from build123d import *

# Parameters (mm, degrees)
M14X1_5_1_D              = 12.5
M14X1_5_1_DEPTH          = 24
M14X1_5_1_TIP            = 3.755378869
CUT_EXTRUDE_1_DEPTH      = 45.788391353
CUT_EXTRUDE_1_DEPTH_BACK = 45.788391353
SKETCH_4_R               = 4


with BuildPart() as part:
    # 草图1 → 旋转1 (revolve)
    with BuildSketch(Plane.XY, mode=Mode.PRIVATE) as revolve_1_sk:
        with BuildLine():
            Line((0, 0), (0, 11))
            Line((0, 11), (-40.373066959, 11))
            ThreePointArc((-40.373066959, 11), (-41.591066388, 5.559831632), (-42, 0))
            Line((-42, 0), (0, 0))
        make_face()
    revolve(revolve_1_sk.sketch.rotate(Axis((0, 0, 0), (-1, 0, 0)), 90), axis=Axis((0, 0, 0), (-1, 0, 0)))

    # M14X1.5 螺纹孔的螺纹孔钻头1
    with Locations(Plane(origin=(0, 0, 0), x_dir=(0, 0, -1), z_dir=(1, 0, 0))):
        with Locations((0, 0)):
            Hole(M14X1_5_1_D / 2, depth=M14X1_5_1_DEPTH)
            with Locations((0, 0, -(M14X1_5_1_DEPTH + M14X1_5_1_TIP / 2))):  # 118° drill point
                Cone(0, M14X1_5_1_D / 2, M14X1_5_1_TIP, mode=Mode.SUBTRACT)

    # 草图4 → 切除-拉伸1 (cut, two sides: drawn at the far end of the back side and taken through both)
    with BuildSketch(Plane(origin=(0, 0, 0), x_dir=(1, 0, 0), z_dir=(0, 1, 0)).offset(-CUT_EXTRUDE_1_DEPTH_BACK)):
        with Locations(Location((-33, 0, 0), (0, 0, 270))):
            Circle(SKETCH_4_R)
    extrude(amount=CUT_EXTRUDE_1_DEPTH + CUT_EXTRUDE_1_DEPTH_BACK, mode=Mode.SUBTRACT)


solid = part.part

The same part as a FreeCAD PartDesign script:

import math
import FreeCAD as App
import Part
import Sketcher
from FreeCAD import Vector

doc = App.newDocument("Part")
params = doc.addObject("Spreadsheet::Sheet", "Params")
for row, (alias, value) in enumerate([
    ("sketch1_radius", "38 mm"),
    ("sketch1_width", "42 mm"),
    ("sketch1_height", "11 mm"),
    ("revolution_angle", "360 deg"),
    ("sketch2_diameter", "12.5 mm"),
    ("hole_diameter", "12.5 mm"),
    ("hole_depth", "24 mm"),
    ("sketch3_diameter", "8 mm"),
], start=1):
    params.set(f"A{row}", alias)
    params.set(f"B{row}", "=" + value)
    params.setAlias(f"B{row}", alias)

body = doc.addObject("PartDesign::Body", "Body")

# Sketch on XY plane
sketch1 = body.newObject("Sketcher::SketchObject", "Sketch")
sketch1.AttachmentSupport = (doc.getObject("XY_Plane"), [""])
sketch1.MapMode = "FlatFace"
sketch1.addGeometry(Part.LineSegment(Vector(0, 0, 0), Vector(0, 11, 0)), False)
sketch1.addGeometry(Part.LineSegment(Vector(0, 11, 0), Vector(-40, 11, 0)), False)
sketch1.addGeometry(Part.ArcOfCircle(Part.Circle(Vector(-4, 0, 0), Vector(0, 0, 1), 38), math.radians(163.17), math.radians(180)), False)
sketch1.addGeometry(Part.LineSegment(Vector(-42, 0, 0), Vector(0, 0, 0)), False)
sketch1.addConstraint(Sketcher.Constraint("Coincident", 0, 2, 1, 1))
sketch1.addConstraint(Sketcher.Constraint("Coincident", 1, 2, 2, 1))
sketch1.addConstraint(Sketcher.Constraint("Coincident", 2, 2, 3, 1))
sketch1.addConstraint(Sketcher.Constraint("Coincident", 3, 2, 0, 1))
sketch1.addConstraint(Sketcher.Constraint("Vertical", 0))
sketch1.addConstraint(Sketcher.Constraint("Horizontal", 1))
sketch1.addConstraint(Sketcher.Constraint("Horizontal", 3))
sketch1.addConstraint(Sketcher.Constraint("Coincident", 3, 2, -1, 1))
sketch1.addConstraint(Sketcher.Constraint("PointOnObject", 2, 3, -1))
sketch1.addConstraint(Sketcher.Constraint("Radius", 2, 38.0))
sketch1.addConstraint(Sketcher.Constraint("DistanceX", 3, 1, 3, 2, 42.0))
sketch1.addConstraint(Sketcher.Constraint("DistanceY", 0, 1, 0, 2, 11.0))
sketch1.setExpression("Constraints[9]", "Params.sketch1_radius")
sketch1.setExpression("Constraints[10]", "Params.sketch1_width")
sketch1.setExpression("Constraints[11]", "Params.sketch1_height")
revolution = body.newObject("PartDesign::Revolution", "Revolution")
revolution.Profile = sketch1
revolution.ReferenceAxis = (sketch1, ["H_Axis"])
revolution.setExpression("Angle", "Params.revolution_angle")

# Sketch on YZ plane
sketch2 = body.newObject("Sketcher::SketchObject", "Sketch001")
sketch2.AttachmentSupport = (doc.getObject("YZ_Plane"), [""])
sketch2.MapMode = "FlatFace"
sketch2.addGeometry(Part.Circle(Vector(0, 0, 0), Vector(0, 0, 1), 6), False)
sketch2.addConstraint(Sketcher.Constraint("Coincident", 0, 3, -1, 1))
sketch2.addConstraint(Sketcher.Constraint("Diameter", 0, 12.5))
sketch2.setExpression("Constraints[1]", "Params.sketch2_diameter")
doc.recompute()
hole = body.newObject("PartDesign::Hole", "Hole")
hole.Profile = sketch2
hole.ThreadType = "None"
hole.setExpression("Diameter", "Params.hole_diameter")
hole.DepthType = "Dimension"
hole.setExpression("Depth", "Params.hole_depth")
hole.DrillPoint = "Angled"
hole.DrillPointAngle = 118

# Sketch on XZ plane
sketch3 = body.newObject("Sketcher::SketchObject", "Sketch002")
sketch3.AttachmentSupport = (doc.getObject("XZ_Plane"), [""])
sketch3.MapMode = "FlatFace"
sketch3.addGeometry(Part.Circle(Vector(-33, 0, 0), Vector(0, 0, 1), 4), False)
sketch3.addConstraint(Sketcher.Constraint("PointOnObject", 0, 3, -1))
sketch3.addConstraint(Sketcher.Constraint("Diameter", 0, 8.0))
sketch3.addConstraint(Sketcher.Constraint("DistanceX", 0, 3, -1, 1, 33.0))
sketch3.setExpression("Constraints[1]", "Params.sketch3_diameter")
pocket1 = body.newObject("PartDesign::Pocket", "Pocket")
pocket1.Profile = sketch3
pocket1.Type = "ThroughAll"
pocket1.Midplane = True

doc.recompute()
